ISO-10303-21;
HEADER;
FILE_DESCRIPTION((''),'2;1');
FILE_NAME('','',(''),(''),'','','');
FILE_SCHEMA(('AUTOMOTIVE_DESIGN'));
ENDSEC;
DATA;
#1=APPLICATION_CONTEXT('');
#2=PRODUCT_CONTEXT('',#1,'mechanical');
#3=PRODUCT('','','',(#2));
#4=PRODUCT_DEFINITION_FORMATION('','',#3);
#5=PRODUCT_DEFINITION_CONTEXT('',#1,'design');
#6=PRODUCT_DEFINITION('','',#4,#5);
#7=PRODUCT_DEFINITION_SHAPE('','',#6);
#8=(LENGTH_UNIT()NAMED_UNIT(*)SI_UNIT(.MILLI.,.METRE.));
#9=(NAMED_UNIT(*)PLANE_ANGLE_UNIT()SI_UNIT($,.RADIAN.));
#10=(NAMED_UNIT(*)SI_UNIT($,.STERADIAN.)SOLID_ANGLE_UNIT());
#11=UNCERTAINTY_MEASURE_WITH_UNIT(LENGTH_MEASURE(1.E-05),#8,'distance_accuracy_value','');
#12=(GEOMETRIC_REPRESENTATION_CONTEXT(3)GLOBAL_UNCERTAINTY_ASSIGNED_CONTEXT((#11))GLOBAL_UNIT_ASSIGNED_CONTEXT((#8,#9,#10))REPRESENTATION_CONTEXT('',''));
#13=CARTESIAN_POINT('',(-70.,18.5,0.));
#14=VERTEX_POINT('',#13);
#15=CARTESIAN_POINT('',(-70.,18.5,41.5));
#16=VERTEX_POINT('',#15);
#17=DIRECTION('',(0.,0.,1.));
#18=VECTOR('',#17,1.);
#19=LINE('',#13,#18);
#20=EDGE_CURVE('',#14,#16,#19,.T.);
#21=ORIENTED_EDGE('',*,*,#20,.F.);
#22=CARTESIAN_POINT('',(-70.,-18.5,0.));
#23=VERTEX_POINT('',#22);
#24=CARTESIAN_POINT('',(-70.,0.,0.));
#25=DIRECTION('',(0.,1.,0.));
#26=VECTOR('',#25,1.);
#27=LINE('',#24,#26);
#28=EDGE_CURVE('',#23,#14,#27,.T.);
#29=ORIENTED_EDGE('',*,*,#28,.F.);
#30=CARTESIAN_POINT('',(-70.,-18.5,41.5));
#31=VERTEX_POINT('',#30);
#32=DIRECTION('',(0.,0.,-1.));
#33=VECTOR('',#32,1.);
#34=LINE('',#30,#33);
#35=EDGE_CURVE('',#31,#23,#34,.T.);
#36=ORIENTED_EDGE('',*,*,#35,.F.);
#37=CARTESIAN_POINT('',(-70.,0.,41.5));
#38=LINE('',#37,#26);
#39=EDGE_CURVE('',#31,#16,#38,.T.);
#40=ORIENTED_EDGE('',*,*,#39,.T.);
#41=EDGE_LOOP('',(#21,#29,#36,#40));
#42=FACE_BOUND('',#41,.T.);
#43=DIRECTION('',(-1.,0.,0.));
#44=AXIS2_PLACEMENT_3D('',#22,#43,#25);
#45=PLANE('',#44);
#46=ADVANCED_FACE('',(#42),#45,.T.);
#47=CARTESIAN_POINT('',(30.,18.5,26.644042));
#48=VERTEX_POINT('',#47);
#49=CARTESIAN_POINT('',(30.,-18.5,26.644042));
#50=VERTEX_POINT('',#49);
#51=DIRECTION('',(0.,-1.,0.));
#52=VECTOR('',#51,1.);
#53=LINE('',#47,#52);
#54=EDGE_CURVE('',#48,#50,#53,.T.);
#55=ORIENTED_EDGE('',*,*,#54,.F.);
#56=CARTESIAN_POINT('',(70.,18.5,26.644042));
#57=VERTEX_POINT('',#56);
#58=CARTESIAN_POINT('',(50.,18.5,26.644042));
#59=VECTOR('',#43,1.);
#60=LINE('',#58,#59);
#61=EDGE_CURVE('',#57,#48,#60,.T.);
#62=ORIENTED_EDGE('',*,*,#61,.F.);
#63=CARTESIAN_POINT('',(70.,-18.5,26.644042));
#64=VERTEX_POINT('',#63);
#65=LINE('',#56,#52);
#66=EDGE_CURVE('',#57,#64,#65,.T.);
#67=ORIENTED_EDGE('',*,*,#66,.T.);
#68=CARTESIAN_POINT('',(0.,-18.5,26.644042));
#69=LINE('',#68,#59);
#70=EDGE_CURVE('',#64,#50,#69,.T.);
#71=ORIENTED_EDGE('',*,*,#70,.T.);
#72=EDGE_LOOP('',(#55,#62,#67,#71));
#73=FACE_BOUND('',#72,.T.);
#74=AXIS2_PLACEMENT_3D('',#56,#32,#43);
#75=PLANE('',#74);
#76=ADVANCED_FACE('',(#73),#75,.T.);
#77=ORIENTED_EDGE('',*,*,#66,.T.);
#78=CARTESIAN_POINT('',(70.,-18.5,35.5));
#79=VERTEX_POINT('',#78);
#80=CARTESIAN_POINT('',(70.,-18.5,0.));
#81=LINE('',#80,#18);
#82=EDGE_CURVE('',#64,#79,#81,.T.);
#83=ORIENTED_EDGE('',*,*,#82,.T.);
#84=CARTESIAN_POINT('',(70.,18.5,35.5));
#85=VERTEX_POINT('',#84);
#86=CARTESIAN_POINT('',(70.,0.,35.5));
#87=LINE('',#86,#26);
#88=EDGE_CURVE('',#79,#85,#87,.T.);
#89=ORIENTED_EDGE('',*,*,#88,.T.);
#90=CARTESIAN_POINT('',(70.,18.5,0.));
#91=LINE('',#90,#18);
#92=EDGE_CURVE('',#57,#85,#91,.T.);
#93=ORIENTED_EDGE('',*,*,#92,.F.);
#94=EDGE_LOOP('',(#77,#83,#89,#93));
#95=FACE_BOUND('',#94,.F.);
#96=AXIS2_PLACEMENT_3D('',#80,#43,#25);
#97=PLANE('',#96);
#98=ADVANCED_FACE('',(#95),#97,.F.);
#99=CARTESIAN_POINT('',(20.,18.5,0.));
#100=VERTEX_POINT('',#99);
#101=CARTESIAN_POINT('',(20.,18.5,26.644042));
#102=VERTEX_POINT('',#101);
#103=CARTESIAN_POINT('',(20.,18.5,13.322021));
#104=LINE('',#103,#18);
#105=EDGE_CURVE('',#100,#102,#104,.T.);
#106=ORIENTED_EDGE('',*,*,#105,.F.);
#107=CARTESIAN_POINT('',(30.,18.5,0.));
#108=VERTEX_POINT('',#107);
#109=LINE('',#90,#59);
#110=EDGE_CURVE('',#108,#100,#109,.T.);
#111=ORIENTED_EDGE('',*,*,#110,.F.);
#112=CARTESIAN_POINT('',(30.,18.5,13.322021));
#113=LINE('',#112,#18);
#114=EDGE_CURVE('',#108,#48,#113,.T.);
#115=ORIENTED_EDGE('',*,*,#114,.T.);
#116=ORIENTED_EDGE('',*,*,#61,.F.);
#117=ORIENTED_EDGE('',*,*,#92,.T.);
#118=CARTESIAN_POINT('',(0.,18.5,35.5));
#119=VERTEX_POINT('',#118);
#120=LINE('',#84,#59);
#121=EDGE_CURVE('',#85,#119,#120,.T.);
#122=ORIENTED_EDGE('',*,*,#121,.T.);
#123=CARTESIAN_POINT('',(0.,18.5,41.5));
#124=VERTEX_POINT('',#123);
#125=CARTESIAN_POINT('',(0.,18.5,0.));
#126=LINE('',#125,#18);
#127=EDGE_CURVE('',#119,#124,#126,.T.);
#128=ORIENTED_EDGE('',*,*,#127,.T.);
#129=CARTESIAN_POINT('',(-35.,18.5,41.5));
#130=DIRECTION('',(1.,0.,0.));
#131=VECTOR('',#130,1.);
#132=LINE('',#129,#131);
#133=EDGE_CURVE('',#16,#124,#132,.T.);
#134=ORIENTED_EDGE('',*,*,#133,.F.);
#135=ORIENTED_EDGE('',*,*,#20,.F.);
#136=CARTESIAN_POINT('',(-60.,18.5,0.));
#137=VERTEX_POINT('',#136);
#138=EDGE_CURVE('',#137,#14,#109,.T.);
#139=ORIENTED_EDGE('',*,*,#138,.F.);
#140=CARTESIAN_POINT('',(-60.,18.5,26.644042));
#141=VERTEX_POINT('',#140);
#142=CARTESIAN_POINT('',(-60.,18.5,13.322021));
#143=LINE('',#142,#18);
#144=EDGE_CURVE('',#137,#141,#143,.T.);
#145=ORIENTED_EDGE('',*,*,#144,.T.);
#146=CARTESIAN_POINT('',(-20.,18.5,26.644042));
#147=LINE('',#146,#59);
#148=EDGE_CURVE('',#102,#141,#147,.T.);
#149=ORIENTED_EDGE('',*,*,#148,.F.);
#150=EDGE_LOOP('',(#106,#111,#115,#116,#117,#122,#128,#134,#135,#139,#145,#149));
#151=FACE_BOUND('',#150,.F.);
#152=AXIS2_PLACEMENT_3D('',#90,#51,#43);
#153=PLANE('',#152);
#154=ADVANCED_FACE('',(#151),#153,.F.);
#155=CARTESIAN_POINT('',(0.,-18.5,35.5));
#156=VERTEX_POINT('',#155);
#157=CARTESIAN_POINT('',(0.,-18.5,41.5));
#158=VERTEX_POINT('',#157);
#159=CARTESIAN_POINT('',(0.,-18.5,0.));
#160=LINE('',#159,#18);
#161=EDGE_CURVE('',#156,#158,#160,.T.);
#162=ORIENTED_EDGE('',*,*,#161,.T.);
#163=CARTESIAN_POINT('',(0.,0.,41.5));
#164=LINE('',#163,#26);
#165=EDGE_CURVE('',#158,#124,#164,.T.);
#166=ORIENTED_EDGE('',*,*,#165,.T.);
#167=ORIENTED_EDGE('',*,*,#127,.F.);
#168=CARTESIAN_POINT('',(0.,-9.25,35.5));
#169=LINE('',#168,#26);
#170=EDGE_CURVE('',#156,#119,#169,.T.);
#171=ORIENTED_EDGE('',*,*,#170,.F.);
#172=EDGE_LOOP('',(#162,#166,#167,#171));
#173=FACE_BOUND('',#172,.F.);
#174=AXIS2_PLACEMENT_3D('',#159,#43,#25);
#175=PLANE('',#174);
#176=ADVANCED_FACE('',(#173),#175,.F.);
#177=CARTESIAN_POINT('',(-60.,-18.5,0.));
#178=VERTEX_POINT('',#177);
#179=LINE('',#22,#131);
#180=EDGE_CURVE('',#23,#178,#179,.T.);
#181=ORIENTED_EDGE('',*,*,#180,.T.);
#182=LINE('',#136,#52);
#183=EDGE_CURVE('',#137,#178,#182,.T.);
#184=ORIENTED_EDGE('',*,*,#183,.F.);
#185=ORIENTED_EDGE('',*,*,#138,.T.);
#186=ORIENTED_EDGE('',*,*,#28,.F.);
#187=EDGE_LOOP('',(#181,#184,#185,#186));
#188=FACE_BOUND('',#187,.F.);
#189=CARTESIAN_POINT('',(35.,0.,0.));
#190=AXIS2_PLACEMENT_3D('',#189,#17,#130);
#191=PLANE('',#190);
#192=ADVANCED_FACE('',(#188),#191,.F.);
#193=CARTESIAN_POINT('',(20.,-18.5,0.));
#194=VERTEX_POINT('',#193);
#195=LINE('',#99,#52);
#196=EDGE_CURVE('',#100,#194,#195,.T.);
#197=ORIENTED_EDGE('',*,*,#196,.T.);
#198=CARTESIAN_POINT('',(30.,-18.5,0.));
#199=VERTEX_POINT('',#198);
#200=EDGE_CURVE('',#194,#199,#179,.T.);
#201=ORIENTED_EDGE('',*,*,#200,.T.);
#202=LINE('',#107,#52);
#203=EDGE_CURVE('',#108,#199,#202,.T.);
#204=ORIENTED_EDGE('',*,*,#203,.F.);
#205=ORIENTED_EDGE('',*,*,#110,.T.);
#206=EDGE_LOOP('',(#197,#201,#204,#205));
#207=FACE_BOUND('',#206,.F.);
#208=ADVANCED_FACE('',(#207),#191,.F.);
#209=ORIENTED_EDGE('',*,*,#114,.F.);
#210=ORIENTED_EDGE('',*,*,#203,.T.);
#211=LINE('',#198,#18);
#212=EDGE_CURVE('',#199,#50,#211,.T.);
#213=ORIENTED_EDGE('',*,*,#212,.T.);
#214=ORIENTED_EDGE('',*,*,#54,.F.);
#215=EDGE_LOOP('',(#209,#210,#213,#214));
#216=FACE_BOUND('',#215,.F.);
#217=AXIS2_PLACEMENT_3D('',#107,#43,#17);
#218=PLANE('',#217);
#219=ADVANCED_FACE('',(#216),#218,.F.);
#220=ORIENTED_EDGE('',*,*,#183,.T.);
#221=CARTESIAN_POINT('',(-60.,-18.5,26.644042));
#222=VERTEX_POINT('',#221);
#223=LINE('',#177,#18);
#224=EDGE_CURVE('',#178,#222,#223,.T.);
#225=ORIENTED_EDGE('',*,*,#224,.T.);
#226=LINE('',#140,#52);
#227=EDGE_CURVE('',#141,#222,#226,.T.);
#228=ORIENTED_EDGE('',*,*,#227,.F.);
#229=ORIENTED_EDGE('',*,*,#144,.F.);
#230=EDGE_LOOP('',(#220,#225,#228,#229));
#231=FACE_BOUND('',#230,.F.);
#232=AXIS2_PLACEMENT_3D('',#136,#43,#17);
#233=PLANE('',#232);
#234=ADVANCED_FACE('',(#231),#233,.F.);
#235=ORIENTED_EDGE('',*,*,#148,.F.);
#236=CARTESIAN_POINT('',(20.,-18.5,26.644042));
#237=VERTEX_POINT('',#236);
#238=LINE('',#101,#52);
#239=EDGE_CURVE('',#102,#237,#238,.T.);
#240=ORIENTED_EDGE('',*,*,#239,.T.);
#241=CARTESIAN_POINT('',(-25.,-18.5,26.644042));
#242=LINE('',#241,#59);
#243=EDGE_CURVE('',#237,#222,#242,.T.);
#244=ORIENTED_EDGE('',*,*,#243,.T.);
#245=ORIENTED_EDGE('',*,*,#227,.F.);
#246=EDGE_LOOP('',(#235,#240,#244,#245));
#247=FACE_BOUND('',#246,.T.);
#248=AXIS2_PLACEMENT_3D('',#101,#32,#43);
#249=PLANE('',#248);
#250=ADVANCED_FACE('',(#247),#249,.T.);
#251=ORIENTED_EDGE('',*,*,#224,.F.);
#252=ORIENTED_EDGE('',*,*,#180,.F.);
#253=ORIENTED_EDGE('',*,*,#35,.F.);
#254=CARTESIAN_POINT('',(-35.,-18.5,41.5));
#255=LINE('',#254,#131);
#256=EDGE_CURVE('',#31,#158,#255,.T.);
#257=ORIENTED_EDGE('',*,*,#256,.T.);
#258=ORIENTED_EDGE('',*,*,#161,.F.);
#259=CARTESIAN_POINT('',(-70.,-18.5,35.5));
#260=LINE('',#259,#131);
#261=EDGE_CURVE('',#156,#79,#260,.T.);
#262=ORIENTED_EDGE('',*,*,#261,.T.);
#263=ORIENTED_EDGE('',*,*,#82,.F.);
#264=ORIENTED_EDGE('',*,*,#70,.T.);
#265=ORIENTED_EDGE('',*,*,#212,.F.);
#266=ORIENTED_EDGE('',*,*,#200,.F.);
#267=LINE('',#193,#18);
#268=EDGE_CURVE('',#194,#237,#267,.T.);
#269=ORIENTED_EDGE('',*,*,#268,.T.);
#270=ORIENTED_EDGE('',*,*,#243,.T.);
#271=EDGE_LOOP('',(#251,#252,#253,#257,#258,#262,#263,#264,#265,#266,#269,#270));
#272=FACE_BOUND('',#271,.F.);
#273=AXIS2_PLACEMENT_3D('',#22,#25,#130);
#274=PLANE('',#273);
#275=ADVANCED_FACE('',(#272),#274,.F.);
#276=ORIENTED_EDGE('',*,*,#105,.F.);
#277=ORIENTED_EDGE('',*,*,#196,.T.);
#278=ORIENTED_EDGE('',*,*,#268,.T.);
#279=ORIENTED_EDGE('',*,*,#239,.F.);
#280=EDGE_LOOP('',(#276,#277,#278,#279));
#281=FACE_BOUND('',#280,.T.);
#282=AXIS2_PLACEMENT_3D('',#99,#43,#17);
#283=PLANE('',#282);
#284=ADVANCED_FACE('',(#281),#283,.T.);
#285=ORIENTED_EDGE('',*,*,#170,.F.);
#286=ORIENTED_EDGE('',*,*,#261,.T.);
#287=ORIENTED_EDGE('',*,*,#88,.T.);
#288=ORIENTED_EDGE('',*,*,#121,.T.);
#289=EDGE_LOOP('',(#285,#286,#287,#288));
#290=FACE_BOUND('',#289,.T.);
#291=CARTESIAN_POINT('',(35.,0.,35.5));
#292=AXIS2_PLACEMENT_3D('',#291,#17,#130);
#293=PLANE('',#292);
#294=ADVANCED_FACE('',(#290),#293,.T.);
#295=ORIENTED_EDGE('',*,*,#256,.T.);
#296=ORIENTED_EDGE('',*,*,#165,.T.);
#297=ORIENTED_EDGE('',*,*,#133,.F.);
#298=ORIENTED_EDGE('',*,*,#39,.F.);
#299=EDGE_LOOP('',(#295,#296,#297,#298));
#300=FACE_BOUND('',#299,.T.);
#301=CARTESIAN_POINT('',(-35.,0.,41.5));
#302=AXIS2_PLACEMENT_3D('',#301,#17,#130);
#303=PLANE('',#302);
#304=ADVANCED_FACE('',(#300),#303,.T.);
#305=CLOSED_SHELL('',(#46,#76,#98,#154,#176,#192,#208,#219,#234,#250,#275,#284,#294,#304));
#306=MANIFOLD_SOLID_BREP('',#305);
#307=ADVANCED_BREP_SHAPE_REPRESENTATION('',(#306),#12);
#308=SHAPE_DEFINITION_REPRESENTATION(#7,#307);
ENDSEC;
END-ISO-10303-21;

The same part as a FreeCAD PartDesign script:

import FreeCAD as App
import Part
import Sketcher
Q = App.Units.Quantity


def add_polygon(sketch, points):
    """Adds a closed chain of lines whose ends are joined by coincident constraints."""
    first, n = sketch.GeometryCount, len(points)
    for a, b in zip(points, points[1:] + points[:1]):
        sketch.addGeometry(Part.LineSegment(App.Vector(*a, 0), App.Vector(*b, 0)), False)
    for i in range(n):
        sketch.addConstraint(Sketcher.Constraint("Coincident", first + i, 2, first + (i + 1) % n, 1))

doc = App.newDocument("Part")
params = doc.addObject("Spreadsheet::Sheet", "Params")
for row, (alias, value) in enumerate([
    ("sketch1_width", "70 mm"),
    ("sketch1_height", "37 mm"),
    ("pad1_length", "41.5 mm"),
    ("sketch2_width", "140 mm"),
    ("sketch2_height", "37 mm"),
    ("pad2_length", "35.5 mm"),
    ("sketch3_width", "80 mm"),
    ("sketch3_width2", "40 mm"),
    ("pocket1_length", "40 mm"),
], start=1):
    params.set(f"A{row}", alias)
    params.set(f"B{row}", "=" + value)
    params.setAlias(f"B{row}", alias)

body = doc.addObject("PartDesign::Body", "Body")

# Sketch on XY plane
sketch1 = body.newObject("Sketcher::SketchObject", "Sketch")
sketch1.AttachmentSupport = (doc.getObject("XY_Plane"), [""])
sketch1.MapMode = "FlatFace"
add_polygon(sketch1, [(-70, 18), (-70, -18), (0, -18), (0, 18)])  # lines 0-3
sketch1.addConstraint([
    Sketcher.Constraint("Vertical", 0),
    Sketcher.Constraint("Horizontal", 1),
    Sketcher.Constraint("Vertical", 2),
    Sketcher.Constraint("Horizontal", 3),
    Sketcher.Constraint("Symmetric", 1, 2, 2, 2, -1, 1),
    Sketcher.Constraint("DistanceX", 1, 1, 1, 2, Q("70 mm")),
    Sketcher.Constraint("DistanceY", 0, 2, 0, 1, Q("37 mm")),
])
sketch1.setExpression("Constraints[9]", "Params.sketch1_width")
sketch1.setExpression("Constraints[10]", "Params.sketch1_height")
pad1 = body.newObject("PartDesign::Pad", "Pad")
pad1.Profile = sketch1
pad1.setExpression("Length", "Params.pad1_length")

# Sketch on XY plane
sketch2 = body.newObject("Sketcher::SketchObject", "Sketch001")
sketch2.AttachmentSupport = (doc.getObject("XY_Plane"), [""])
sketch2.MapMode = "FlatFace"
add_polygon(sketch2, [(70, -18), (70, 18), (-70, 18), (-70, -18)])  # lines 0-3
sketch2.addConstraint([
    Sketcher.Constraint("Vertical", 0),
    Sketcher.Constraint("Horizontal", 1),
    Sketcher.Constraint("Vertical", 2),
    Sketcher.Constraint("Horizontal", 3),
    Sketcher.Constraint("Symmetric", 0, 2, 2, 2, -1, 1),
    Sketcher.Constraint("DistanceX", 1, 2, 1, 1, Q("140 mm")),
    Sketcher.Constraint("DistanceY", 0, 1, 0, 2, Q("37 mm")),
])
sketch2.setExpression("Constraints[9]", "Params.sketch2_width")
sketch2.setExpression("Constraints[10]", "Params.sketch2_height")
pad2 = body.newObject("PartDesign::Pad", "Pad001")
pad2.Profile = sketch2
pad2.setExpression("Length", "Params.pad2_length")

# Sketch on XZ plane
sketch3 = body.newObject("Sketcher::SketchObject", "Sketch002")
sketch3.AttachmentSupport = (doc.getObject("XZ_Plane"), [""])
sketch3.MapMode = "FlatFace"
sketch3.AttachmentOffset = App.Placement(App.Vector(0, 0, -18.5), App.Rotation())
add_polygon(sketch3, [(20, 27), (20, 0), (-60, 0), (-60, 27)])  # lines 0-3
add_polygon(sketch3, [(70, 27), (70, 0), (30, 0), (30, 27)])  # lines 4-7
sketch3.addConstraint([
    Sketcher.Constraint("Vertical", 0),
    Sketcher.Constraint("Horizontal", 1),
    Sketcher.Constraint("Vertical", 2),
    Sketcher.Constraint("Horizontal", 3),
    Sketcher.Constraint("Vertical", 4),
    Sketcher.Constraint("Horizontal", 5),
    Sketcher.Constraint("Vertical", 6),
    Sketcher.Constraint("Horizontal", 7),
    Sketcher.Constraint("PointOnObject", 0, 2, -1),
    Sketcher.Constraint("PointOnObject", 4, 2, -1),
    Sketcher.Constraint("Horizontal", 3, 2, 6, 2),
    Sketcher.Constraint("DistanceX", 1, 2, 1, 1, Q("80 mm")),
    Sketcher.Constraint("DistanceX", 5, 2, 5, 1, Q("40 mm")),
    Sketcher.Constraint("DistanceX", -1, 1, 0, 2, Q("20 mm")),
    Sketcher.Constraint("DistanceX", -1, 1, 4, 2, Q("70 mm")),
    Sketcher.Constraint("DistanceY", 0, 2, 0, 1, Q("26.644042 mm")),
])
sketch3.setExpression("Constraints[19]", "Params.sketch3_width")
sketch3.setExpression("Constraints[20]", "Params.sketch3_width2")
pocket1 = body.newObject("PartDesign::Pocket", "Pocket")
pocket1.Profile = sketch3
pocket1.setExpression("Length", "Params.pocket1_length")
pocket1.Reversed = True

doc.recompute()
